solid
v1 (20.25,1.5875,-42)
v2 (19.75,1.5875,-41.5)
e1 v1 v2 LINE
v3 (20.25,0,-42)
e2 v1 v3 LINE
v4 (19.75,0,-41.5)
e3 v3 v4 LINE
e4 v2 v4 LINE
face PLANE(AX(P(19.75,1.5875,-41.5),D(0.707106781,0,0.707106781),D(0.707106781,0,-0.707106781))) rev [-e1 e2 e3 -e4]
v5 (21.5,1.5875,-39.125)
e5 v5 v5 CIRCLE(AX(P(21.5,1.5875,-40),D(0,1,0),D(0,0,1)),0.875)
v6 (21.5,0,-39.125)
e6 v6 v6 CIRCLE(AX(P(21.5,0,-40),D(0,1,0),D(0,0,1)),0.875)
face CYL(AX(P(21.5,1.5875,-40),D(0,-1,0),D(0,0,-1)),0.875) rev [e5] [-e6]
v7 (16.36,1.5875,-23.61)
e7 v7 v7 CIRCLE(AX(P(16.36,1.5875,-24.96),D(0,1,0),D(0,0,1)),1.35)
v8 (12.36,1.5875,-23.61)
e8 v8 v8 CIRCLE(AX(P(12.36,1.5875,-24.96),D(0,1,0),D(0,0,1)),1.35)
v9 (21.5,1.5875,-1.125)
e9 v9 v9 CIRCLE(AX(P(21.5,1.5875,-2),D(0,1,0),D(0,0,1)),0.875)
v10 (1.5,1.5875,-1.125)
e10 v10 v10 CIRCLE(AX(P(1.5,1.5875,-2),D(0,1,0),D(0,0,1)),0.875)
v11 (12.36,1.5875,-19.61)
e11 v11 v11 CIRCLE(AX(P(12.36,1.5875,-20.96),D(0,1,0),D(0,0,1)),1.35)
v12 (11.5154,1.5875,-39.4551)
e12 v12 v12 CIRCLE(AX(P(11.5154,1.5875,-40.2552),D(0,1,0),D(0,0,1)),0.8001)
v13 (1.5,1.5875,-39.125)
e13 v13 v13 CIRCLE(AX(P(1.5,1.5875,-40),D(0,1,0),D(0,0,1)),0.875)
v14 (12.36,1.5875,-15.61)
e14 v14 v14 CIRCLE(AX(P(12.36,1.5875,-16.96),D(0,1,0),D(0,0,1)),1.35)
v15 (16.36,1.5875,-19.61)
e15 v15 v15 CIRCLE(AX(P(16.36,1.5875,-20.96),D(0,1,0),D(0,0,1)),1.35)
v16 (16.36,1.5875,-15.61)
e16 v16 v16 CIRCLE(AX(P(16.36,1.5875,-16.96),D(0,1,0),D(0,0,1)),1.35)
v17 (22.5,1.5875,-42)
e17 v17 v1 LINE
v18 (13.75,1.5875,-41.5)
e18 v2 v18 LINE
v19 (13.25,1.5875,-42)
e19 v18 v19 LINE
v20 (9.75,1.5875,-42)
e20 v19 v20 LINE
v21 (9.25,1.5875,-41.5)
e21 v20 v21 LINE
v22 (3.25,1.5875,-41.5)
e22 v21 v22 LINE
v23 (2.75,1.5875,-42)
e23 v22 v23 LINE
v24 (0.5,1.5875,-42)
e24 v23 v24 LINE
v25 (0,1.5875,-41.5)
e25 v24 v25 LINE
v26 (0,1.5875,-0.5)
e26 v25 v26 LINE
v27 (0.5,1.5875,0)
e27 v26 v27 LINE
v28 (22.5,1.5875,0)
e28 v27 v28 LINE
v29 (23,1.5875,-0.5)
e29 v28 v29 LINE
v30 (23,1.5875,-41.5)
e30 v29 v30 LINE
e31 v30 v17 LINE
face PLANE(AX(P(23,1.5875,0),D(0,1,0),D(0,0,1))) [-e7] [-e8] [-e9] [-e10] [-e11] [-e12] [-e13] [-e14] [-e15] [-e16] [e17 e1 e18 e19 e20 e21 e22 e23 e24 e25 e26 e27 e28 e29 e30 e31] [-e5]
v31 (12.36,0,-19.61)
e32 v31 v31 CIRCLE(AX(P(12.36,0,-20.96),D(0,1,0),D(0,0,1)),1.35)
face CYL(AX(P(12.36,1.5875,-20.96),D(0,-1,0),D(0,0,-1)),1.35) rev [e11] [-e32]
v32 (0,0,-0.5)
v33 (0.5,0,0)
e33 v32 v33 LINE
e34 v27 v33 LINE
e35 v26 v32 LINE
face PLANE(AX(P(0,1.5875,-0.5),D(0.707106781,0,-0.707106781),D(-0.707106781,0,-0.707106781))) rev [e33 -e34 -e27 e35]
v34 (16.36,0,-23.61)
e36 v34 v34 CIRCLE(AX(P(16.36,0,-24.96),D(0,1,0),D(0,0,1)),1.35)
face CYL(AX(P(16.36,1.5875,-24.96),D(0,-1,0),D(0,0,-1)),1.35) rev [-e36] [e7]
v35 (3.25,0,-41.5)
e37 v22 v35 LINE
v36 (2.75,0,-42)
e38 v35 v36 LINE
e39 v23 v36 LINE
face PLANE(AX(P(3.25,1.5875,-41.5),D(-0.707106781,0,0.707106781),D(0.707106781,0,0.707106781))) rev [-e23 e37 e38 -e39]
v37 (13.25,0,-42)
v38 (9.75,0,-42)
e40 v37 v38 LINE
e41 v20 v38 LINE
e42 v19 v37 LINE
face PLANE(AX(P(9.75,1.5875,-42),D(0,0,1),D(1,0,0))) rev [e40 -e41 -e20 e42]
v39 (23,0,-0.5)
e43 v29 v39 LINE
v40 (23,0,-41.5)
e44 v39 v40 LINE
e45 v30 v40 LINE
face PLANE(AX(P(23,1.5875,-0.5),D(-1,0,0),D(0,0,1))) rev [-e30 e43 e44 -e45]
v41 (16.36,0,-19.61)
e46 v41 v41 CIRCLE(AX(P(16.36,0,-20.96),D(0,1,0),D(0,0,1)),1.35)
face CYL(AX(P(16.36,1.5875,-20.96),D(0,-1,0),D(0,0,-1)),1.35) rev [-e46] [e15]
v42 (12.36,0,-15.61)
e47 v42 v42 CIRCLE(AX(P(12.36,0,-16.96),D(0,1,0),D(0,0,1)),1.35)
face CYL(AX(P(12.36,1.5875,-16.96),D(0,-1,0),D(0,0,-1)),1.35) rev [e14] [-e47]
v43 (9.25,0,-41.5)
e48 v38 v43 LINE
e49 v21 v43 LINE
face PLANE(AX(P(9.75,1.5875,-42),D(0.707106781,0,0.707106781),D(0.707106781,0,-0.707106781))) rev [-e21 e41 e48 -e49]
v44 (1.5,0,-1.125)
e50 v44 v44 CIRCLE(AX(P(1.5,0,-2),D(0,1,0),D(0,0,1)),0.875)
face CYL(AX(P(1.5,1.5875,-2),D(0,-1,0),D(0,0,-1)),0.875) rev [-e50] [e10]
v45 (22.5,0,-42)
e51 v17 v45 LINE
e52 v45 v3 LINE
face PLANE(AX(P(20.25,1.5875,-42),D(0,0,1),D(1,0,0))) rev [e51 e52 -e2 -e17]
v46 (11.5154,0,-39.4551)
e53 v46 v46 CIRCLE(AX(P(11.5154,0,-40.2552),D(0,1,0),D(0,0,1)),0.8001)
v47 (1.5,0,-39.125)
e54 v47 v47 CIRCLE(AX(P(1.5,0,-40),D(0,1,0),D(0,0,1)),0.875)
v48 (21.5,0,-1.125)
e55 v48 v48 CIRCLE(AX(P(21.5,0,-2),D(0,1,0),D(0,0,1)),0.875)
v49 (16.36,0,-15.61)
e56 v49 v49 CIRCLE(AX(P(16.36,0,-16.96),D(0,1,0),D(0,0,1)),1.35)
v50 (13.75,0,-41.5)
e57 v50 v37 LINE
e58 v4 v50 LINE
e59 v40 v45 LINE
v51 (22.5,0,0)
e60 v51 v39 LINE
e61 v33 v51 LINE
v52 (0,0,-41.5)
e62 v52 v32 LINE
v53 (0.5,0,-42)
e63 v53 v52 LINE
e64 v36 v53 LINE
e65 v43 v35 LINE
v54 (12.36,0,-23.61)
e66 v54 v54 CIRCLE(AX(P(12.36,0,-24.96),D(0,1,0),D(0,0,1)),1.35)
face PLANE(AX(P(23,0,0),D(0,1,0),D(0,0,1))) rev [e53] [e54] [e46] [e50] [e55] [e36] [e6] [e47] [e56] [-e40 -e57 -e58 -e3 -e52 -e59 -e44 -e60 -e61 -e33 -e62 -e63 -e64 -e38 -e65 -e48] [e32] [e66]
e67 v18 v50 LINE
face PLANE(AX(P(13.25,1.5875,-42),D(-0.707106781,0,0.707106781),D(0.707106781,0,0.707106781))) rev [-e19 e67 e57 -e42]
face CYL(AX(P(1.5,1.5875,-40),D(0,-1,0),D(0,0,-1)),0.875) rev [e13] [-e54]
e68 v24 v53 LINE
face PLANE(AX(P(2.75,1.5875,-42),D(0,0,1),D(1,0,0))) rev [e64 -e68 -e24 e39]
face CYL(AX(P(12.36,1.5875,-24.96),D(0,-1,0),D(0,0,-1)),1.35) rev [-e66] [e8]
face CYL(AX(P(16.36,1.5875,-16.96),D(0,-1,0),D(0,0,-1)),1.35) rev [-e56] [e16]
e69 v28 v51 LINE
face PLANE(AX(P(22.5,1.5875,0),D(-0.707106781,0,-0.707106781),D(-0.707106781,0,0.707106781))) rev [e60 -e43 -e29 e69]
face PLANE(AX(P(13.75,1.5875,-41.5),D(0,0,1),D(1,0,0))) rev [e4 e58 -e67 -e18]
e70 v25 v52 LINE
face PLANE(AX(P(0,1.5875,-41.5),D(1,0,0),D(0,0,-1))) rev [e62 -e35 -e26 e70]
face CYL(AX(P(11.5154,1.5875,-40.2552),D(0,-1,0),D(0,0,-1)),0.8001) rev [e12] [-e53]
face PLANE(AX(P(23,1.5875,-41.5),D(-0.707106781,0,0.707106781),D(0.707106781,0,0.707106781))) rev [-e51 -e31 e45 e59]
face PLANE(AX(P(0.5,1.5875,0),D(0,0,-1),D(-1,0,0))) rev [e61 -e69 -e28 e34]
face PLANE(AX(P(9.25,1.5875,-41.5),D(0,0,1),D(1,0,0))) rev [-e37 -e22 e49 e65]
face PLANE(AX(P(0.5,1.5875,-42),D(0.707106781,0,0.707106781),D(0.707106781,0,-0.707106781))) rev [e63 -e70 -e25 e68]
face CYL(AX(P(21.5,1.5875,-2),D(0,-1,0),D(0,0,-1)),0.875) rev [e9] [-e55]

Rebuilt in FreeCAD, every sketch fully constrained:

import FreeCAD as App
import Part
import Sketcher
from FreeCAD import Vector

doc = App.newDocument("Part")
body = doc.addObject("PartDesign::Body", "Body")

# Sketch on XZ plane
sketch1 = doc.addObject("Sketcher::SketchObject", "Sketch")
body.addObject(sketch1)
sketch1.AttachmentSupport = (doc.XZ_Plane, [""])
sketch1.MapMode = "FlatFace"
sketch1.addGeometry([
    Part.LineSegment(Vector(22.5, 0, 0), Vector(23, -0.5, 0)),  # 0
    Part.LineSegment(Vector(23, -0.5, 0), Vector(23, -41.5, 0)),  # 1
    Part.LineSegment(Vector(23, -41.5, 0), Vector(22.5, -42, 0)),  # 2
    Part.LineSegment(Vector(22.5, -42, 0), Vector(20.2, -42, 0)),  # 3
    Part.LineSegment(Vector(20.2, -42, 0), Vector(19.8, -41.5, 0)),  # 4
    Part.LineSegment(Vector(19.8, -41.5, 0), Vector(13.8, -41.5, 0)),  # 5
    Part.LineSegment(Vector(13.8, -41.5, 0), Vector(13.2, -42, 0)),  # 6
    Part.LineSegment(Vector(13.2, -42, 0), Vector(9.8, -42, 0)),  # 7
    Part.LineSegment(Vector(9.8, -42, 0), Vector(9.2, -41.5, 0)),  # 8
    Part.LineSegment(Vector(9.2, -41.5, 0), Vector(3.2, -41.5, 0)),  # 9
    Part.LineSegment(Vector(3.2, -41.5, 0), Vector(2.8, -42, 0)),  # 10
    Part.LineSegment(Vector(2.8, -42, 0), Vector(0.5, -42, 0)),  # 11
    Part.LineSegment(Vector(0.5, -42, 0), Vector(0, -41.5, 0)),  # 12
    Part.LineSegment(Vector(0, -41.5, 0), Vector(0, -0.5, 0)),  # 13
    Part.LineSegment(Vector(0, -0.5, 0), Vector(0.5, 0, 0)),  # 14
    Part.LineSegment(Vector(0.5, 0, 0), Vector(22.5, 0, 0)),  # 15
    Part.Circle(Vector(1.5, -2, 0), Vector(0, 0, 1), 0.9),  # 16
    Part.Circle(Vector(21.5, -2, 0), Vector(0, 0, 1), 0.9),  # 17
    Part.Circle(Vector(12.4, -17, 0), Vector(0, 0, 1), 1.4),  # 18
    Part.Circle(Vector(12.4, -21, 0), Vector(0, 0, 1), 1.4),  # 19
    Part.Circle(Vector(16.4, -17, 0), Vector(0, 0, 1), 1.4),  # 20
    Part.Circle(Vector(16.4, -21, 0), Vector(0, 0, 1), 1.4),  # 21
    Part.Circle(Vector(1.5, -40, 0), Vector(0, 0, 1), 0.9),  # 22
    Part.Circle(Vector(12.4, -25, 0), Vector(0, 0, 1), 1.4),  # 23
    Part.Circle(Vector(16.4, -25, 0), Vector(0, 0, 1), 1.4),  # 24
    Part.Circle(Vector(11.5, -40.3, 0), Vector(0, 0, 1), 0.8),  # 25
    Part.Circle(Vector(21.5, -40, 0), Vector(0, 0, 1), 0.9),  # 26
], False)
sketch1.addConstraint([
    Sketcher.Constraint("Coincident", 0, 2, 1, 1),
    Sketcher.Constraint("Coincident", 1, 2, 2, 1),
    Sketcher.Constraint("Coincident", 2, 2, 3, 1),
    Sketcher.Constraint("Coincident", 3, 2, 4, 1),
    Sketcher.Constraint("Coincident", 4, 2, 5, 1),
    Sketcher.Constraint("Coincident", 5, 2, 6, 1),
    Sketcher.Constraint("Coincident", 6, 2, 7, 1),
    Sketcher.Constraint("Coincident", 7, 2, 8, 1),
    Sketcher.Constraint("Coincident", 8, 2, 9, 1),
    Sketcher.Constraint("Coincident", 9, 2, 10, 1),
    Sketcher.Constraint("Coincident", 10, 2, 11, 1),
    Sketcher.Constraint("Coincident", 11, 2, 12, 1),
    Sketcher.Constraint("Coincident", 12, 2, 13, 1),
    Sketcher.Constraint("Coincident", 13, 2, 14, 1),
    Sketcher.Constraint("Coincident", 14, 2, 15, 1),
    Sketcher.Constraint("Coincident", 15, 2, 0, 1),
    Sketcher.Constraint("Vertical", 1),
    Sketcher.Constraint("Horizontal", 3),
    Sketcher.Constraint("Horizontal", 5),
    Sketcher.Constraint("Horizontal", 7),
    Sketcher.Constraint("Horizontal", 9),
    Sketcher.Constraint("Horizontal", 11),
    Sketcher.Constraint("Vertical", 13),
    Sketcher.Constraint("Horizontal", 15),
    Sketcher.Constraint("Equal", 16, 17),
    Sketcher.Constraint("Equal", 18, 19),
    Sketcher.Constraint("Equal", 19, 20),
    Sketcher.Constraint("Equal", 20, 21),
    Sketcher.Constraint("Equal", 17, 22),
    Sketcher.Constraint("Equal", 21, 23),
    Sketcher.Constraint("Equal", 23, 24),
    Sketcher.Constraint("Equal", 22, 26),
    Sketcher.Constraint("PointOnObject", 12, 2, -2),
    Sketcher.Constraint("PointOnObject", 14, 2, -1),
    Sketcher.Constraint("Perpendicular", 0, 2),
    Sketcher.Constraint("Perpendicular", 2, 4),
    Sketcher.Constraint("Perpendicular", 4, 6),
    Sketcher.Constraint("Perpendicular", 6, 8),
    Sketcher.Constraint("Perpendicular", 8, 10),
    Sketcher.Constraint("Perpendicular", 10, 12),
    Sketcher.Constraint("Perpendicular", 12, 14),
    Sketcher.Constraint("Horizontal", 16, 3, 17, 3),
    Sketcher.Constraint("Horizontal", 18, 3, 20, 3),
    Sketcher.Constraint("Horizontal", 19, 3, 21, 3),
    Sketcher.Constraint("Horizontal", 23, 3, 24, 3),
    Sketcher.Constraint("Horizontal", 22, 3, 26, 3),
    Sketcher.Constraint("Horizontal", 1, 2, 4, 2),
    Sketcher.Constraint("Horizontal", 3, 2, 6, 2),
    Sketcher.Constraint("Horizontal", 5, 2, 8, 2),
    Sketcher.Constraint("Horizontal", 7, 2, 10, 2),
    Sketcher.Constraint("Horizontal", 9, 2, 12, 2),
    Sketcher.Constraint("Horizontal", 0, 2, 13, 2),
    Sketcher.Constraint("Vertical", 18, 3, 19, 3),
    Sketcher.Constraint("Vertical", 20, 3, 21, 3),
    Sketcher.Constraint("Vertical", 16, 3, 22, 3),
    Sketcher.Constraint("Vertical", 19, 3, 23, 3),
    Sketcher.Constraint("Vertical", 21, 3, 24, 3),
    Sketcher.Constraint("Vertical", 17, 3, 26, 3),
    Sketcher.Constraint("Vertical", 11, 2, 14, 2),
    Sketcher.Constraint("Vertical", 2, 2, 15, 2),
    Sketcher.Constraint("Equal", 5, 9),
    Sketcher.Constraint("Equal", 3, 11),
    Sketcher.Constraint("Diameter", 18, 2.7),
    Sketcher.Constraint("Diameter", 16, 1.75),
    Sketcher.Constraint("DistanceX", 5, 2, 5, 1, 6.0),
    Sketcher.Constraint("DistanceX", 15, 1, 15, 2, 22.0),
    Sketcher.Constraint("DistanceY", 1, 2, 1, 1, 41.0),
    Sketcher.Constraint("DistanceX", 7, 2, 7, 1, 3.5),
    Sketcher.Constraint("DistanceY", 16, 3, -1, 1, 2.0),
    Sketcher.Constraint("DistanceY", 22, 3, -1, 1, 40.0),
    Sketcher.Constraint("DistanceX", -1, 1, 0, 2, 23.0),
    Sketcher.Constraint("DistanceX", 16, 3, 17, 3, 20.0),
    Sketcher.Constraint("DistanceY", 19, 3, 18, 3, 4.0),
    Sketcher.Constraint("DistanceX", 18, 3, 20, 3, 4.0),
    Sketcher.Constraint("DistanceY", 23, 3, 19, 3, 4.0),
    Sketcher.Constraint("DistanceX", 26, 3, 2, 2, 1.0),
    Sketcher.Constraint("Diameter", 25, 1.6002),
    Sketcher.Constraint("DistanceX", -1, 1, 18, 3, 12.36),
    Sketcher.Constraint("DistanceY", 18, 3, -1, 1, 16.96),
    Sketcher.Constraint("DistanceX", -1, 1, 25, 3, 11.5154),
    Sketcher.Constraint("DistanceY", 25, 3, -1, 1, 40.2552),
])
pad1 = doc.addObject("PartDesign::Pad", "Pad")
body.addObject(pad1)
pad1.Profile = sketch1
pad1.Length = 1.5875
pad1.Reversed = True

doc.recompute()
